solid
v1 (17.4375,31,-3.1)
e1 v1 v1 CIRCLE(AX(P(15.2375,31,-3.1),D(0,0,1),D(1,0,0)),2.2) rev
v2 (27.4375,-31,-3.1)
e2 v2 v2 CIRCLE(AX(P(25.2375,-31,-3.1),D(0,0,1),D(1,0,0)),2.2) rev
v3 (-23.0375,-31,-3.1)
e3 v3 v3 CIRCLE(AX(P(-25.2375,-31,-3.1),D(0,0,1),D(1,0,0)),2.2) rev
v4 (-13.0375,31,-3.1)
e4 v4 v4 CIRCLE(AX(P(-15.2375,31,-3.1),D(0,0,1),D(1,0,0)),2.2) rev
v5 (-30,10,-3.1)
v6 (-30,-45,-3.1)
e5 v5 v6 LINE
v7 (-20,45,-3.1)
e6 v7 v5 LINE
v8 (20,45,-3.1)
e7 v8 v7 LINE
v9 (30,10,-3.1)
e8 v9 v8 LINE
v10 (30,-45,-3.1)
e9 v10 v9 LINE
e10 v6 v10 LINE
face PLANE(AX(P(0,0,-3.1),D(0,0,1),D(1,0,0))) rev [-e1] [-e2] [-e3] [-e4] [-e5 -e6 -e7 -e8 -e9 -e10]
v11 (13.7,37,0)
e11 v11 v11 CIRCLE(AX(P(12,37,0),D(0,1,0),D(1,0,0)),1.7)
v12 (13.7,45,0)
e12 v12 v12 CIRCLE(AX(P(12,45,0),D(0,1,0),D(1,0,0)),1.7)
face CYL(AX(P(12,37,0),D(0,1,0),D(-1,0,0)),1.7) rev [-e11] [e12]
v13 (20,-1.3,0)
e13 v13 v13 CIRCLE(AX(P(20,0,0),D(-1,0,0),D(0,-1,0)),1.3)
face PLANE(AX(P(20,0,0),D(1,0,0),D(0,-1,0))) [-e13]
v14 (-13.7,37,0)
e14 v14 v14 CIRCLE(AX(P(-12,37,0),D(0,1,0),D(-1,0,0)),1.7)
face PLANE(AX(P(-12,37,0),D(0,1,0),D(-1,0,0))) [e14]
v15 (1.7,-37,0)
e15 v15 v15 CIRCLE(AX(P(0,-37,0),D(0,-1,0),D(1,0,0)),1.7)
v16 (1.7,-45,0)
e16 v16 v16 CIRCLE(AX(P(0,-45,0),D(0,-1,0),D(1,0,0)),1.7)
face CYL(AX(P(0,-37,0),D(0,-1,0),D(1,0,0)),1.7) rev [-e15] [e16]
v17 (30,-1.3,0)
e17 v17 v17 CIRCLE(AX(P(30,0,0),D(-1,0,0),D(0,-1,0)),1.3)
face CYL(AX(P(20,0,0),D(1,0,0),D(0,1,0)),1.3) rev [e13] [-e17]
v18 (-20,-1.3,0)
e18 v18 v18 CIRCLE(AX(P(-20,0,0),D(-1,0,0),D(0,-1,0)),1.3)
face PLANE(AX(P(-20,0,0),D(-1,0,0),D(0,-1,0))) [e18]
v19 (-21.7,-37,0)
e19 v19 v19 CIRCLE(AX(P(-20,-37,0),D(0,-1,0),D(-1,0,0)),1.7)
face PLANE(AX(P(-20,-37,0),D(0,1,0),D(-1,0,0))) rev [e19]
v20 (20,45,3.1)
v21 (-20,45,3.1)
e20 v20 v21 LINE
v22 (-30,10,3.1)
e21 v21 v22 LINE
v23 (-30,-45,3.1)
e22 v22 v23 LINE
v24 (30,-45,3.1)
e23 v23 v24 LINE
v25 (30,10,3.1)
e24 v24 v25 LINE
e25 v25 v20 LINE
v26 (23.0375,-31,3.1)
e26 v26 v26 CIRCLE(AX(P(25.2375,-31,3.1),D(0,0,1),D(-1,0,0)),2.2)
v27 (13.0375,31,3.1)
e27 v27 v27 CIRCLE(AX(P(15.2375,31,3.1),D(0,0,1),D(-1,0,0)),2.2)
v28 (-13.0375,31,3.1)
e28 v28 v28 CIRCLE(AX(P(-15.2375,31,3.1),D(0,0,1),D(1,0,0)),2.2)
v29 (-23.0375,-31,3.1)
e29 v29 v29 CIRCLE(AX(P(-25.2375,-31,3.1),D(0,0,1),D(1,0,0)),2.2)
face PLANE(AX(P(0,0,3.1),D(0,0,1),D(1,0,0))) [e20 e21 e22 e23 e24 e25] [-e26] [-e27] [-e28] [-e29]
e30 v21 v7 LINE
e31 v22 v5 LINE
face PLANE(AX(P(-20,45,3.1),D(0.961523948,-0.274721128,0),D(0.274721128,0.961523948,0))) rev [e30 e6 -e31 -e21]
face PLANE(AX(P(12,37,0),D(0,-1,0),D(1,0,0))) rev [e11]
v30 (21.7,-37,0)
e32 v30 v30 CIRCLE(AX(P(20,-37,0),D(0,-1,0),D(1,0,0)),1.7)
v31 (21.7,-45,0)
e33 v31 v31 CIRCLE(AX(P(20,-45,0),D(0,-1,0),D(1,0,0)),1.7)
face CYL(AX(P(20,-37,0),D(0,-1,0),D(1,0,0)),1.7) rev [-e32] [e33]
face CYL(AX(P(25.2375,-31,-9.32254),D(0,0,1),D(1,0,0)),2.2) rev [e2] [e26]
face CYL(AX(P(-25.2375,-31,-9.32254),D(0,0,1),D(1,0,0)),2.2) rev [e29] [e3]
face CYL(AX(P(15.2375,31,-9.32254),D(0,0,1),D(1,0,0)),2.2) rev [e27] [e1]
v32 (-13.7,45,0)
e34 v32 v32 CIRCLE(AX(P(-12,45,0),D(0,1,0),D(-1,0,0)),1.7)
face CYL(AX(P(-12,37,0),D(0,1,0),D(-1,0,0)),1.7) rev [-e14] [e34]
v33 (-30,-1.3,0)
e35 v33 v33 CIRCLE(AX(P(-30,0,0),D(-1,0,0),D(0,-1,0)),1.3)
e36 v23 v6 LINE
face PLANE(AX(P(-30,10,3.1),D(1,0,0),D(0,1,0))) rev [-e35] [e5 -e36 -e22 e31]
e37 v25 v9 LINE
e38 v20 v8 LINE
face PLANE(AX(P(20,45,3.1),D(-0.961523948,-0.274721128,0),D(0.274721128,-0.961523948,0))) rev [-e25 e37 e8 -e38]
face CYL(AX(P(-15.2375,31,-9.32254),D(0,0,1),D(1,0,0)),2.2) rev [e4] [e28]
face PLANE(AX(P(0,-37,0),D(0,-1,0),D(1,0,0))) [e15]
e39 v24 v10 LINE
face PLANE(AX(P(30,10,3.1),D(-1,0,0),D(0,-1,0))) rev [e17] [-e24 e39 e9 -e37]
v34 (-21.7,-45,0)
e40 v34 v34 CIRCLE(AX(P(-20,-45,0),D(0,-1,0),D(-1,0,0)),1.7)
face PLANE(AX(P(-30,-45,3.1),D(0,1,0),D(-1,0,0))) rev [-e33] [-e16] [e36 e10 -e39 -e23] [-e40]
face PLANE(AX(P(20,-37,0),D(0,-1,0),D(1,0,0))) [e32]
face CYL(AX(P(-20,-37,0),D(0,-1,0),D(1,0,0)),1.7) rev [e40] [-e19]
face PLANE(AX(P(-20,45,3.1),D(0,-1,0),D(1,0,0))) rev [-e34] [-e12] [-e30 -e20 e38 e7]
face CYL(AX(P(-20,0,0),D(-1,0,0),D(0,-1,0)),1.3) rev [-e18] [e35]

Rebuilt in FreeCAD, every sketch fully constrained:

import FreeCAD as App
import Part
import Sketcher

V = App.Vector
Q = App.Units.Quantity


def add_polygon(sketch, points):
    """Adds a closed chain of lines whose ends are joined by coincident constraints."""
    first, n = sketch.GeometryCount, len(points)
    for a, b in zip(points, points[1:] + points[:1]):
        sketch.addGeometry(Part.LineSegment(App.Vector(*a, 0), App.Vector(*b, 0)), False)
    for i in range(n):
        sketch.addConstraint(Sketcher.Constraint("Coincident", first + i, 2, first + (i + 1) % n, 1))

doc = App.newDocument("Part")
body = doc.addObject("PartDesign::Body", "Body")

sketch1 = body.newObject("Sketcher::SketchObject", "Sketch")
sketch1.AttachmentSupport = (doc.getObject("XY_Plane"), [""])
sketch1.MapMode = "FlatFace"
add_polygon(sketch1, [(20, 45), (-20, 45), (-30, 10), (-30, -45), (30, -45), (30, 10)])
sketch1.addConstraint([
    Sketcher.Constraint("Horizontal", 0),
    Sketcher.Constraint("Vertical", 2),
    Sketcher.Constraint("Horizontal", 3),
    Sketcher.Constraint("Vertical", 4),
    Sketcher.Constraint("Symmetric", 1, 2, 4, 2, -2),
    Sketcher.Constraint("Equal", 1, 5),
    Sketcher.Constraint("DistanceX", 0, 2, 0, 1, Q("40 mm")),
    Sketcher.Constraint("DistanceX", 3, 1, 3, 2, Q("60 mm")),
    Sketcher.Constraint("DistanceY", 2, 2, 2, 1, Q("55 mm")),
    Sketcher.Constraint("DistanceY", -1, 1, 0, 2, Q("45 mm")),
    Sketcher.Constraint("DistanceY", -1, 1, 1, 2, Q("10 mm")),
])
pad1 = body.newObject("PartDesign::Pad", "Pad")
pad1.Profile = sketch1
pad1.Length = 6.2
pad1.Midplane = True

sketch2 = body.newObject("Sketcher::SketchObject", "Sketch001")
sketch2.AttachmentSupport = (doc.getObject("XZ_Plane"), [""])
sketch2.MapMode = "FlatFace"
sketch2.AttachmentOffset = App.Placement(V(0, 0, -45), App.Rotation())
sketch2.addGeometry([
    Part.Circle(V(-12, 0, 0), V(0, 0, 1), 1.7),
    Part.Circle(V(12, 0, 0), V(0, 0, 1), 1.7),
], False)
sketch2.addConstraint([
    Sketcher.Constraint("Equal", 0, 1),
    Sketcher.Constraint("Symmetric", 0, 3, 1, 3, -1, 1),
    Sketcher.Constraint("PointOnObject", 0, 3, -1),
    Sketcher.Constraint("Diameter", 0, Q("3.4 mm")),
    Sketcher.Constraint("DistanceX", 0, 3, -1, 1, Q("12 mm")),
])
pocket1 = body.newObject("PartDesign::Pocket", "Pocket")
pocket1.Profile = sketch2
pocket1.Length = 8
pocket1.Reversed = True

sketch3 = body.newObject("Sketcher::SketchObject", "Sketch002")
sketch3.AttachmentSupport = (doc.getObject("XZ_Plane"), [""])
sketch3.MapMode = "FlatFace"
sketch3.AttachmentOffset = App.Placement(V(0, 0, 45), App.Rotation())
sketch3.addGeometry([
    Part.Circle(V(20, 0, 0), V(0, 0, 1), 1.7),
    Part.Circle(V(-20, 0, 0), V(0, 0, 1), 1.7),
    Part.Circle(V(0, 0, 0), V(0, 0, 1), 1.7),
], False)
sketch3.addConstraint([
    Sketcher.Constraint("Coincident", 2, 3, -1, 1),
    Sketcher.Constraint("Equal", 0, 1),
    Sketcher.Constraint("Equal", 1, 2),
    Sketcher.Constraint("Symmetric", 0, 3, 1, 3, -1, 1),
    Sketcher.Constraint("PointOnObject", 0, 3, -1),
    Sketcher.Constraint("Diameter", 0, Q("3.4 mm")),
    Sketcher.Constraint("DistanceX", -1, 1, 0, 3, Q("20 mm")),
])
pocket2 = body.newObject("PartDesign::Pocket", "Pocket001")
pocket2.Profile = sketch3
pocket2.Length = 8

sketch4 = body.newObject("Sketcher::SketchObject", "Sketch003")
sketch4.AttachmentSupport = (doc.getObject("XY_Plane"), [""])
sketch4.MapMode = "FlatFace"
sketch4.AttachmentOffset = App.Placement(V(0, 0, 3.1), App.Rotation())
sketch4.addGeometry([
    Part.Circle(V(-25.2, -31, 0), V(0, 0, 1), 2.2),
    Part.Circle(V(25.2, -31, 0), V(0, 0, 1), 2.2),
    Part.Circle(V(-15.2, 31, 0), V(0, 0, 1), 2.2),
    Part.Circle(V(15.2, 31, 0), V(0, 0, 1), 2.2),
], False)
sketch4.addConstraint([
    Sketcher.Constraint("Equal", 0, 1),
    Sketcher.Constraint("Equal", 1, 2),
    Sketcher.Constraint("Equal", 2, 3),
    Sketcher.Constraint("Symmetric", 0, 3, 1, 3, -2),
    Sketcher.Constraint("Symmetric", 2, 3, 3, 3, -2),
    Sketcher.Constraint("Diameter", 0, Q("4.4 mm")),
    Sketcher.Constraint("DistanceY", 0, 3, -1, 1, Q("31 mm")),
    Sketcher.Constraint("DistanceY", -1, 1, 2, 3, Q("31 mm")),
    Sketcher.Constraint("DistanceX", 0, 3, 2, 3, Q("10 mm")),
    Sketcher.Constraint("DistanceX", 0, 3, 1, 3, Q("50.475 mm")),
])
pocket3 = body.newObject("PartDesign::Pocket", "Pocket002")
pocket3.Profile = sketch4
pocket3.Length = 6.2

sketch5 = body.newObject("Sketcher::SketchObject", "Sketch004")
sketch5.AttachmentSupport = (doc.getObject("YZ_Plane"), [""])
sketch5.MapMode = "FlatFace"
sketch5.AttachmentOffset = App.Placement(V(0, 0, -30), App.Rotation())
sketch5.addGeometry(Part.Circle(V(0, 0, 0), V(0, 0, 1), 1.3), False)
sketch5.addConstraint([
    Sketcher.Constraint("Coincident", 0, 3, -1, 1),
    Sketcher.Constraint("Diameter", 0, Q("2.6 mm")),
])
pocket4 = body.newObject("PartDesign::Pocket", "Pocket003")
pocket4.Profile = sketch5
pocket4.Length = 10
pocket4.Reversed = True
doc.recompute()

mirrored = body.newObject("PartDesign::Mirrored", "Mirrored")
mirrored.Originals = [pocket4]
mirrored.MirrorPlane = (doc.getObject("YZ_Plane"), [""])
body.Tip = mirrored

doc.recompute()
